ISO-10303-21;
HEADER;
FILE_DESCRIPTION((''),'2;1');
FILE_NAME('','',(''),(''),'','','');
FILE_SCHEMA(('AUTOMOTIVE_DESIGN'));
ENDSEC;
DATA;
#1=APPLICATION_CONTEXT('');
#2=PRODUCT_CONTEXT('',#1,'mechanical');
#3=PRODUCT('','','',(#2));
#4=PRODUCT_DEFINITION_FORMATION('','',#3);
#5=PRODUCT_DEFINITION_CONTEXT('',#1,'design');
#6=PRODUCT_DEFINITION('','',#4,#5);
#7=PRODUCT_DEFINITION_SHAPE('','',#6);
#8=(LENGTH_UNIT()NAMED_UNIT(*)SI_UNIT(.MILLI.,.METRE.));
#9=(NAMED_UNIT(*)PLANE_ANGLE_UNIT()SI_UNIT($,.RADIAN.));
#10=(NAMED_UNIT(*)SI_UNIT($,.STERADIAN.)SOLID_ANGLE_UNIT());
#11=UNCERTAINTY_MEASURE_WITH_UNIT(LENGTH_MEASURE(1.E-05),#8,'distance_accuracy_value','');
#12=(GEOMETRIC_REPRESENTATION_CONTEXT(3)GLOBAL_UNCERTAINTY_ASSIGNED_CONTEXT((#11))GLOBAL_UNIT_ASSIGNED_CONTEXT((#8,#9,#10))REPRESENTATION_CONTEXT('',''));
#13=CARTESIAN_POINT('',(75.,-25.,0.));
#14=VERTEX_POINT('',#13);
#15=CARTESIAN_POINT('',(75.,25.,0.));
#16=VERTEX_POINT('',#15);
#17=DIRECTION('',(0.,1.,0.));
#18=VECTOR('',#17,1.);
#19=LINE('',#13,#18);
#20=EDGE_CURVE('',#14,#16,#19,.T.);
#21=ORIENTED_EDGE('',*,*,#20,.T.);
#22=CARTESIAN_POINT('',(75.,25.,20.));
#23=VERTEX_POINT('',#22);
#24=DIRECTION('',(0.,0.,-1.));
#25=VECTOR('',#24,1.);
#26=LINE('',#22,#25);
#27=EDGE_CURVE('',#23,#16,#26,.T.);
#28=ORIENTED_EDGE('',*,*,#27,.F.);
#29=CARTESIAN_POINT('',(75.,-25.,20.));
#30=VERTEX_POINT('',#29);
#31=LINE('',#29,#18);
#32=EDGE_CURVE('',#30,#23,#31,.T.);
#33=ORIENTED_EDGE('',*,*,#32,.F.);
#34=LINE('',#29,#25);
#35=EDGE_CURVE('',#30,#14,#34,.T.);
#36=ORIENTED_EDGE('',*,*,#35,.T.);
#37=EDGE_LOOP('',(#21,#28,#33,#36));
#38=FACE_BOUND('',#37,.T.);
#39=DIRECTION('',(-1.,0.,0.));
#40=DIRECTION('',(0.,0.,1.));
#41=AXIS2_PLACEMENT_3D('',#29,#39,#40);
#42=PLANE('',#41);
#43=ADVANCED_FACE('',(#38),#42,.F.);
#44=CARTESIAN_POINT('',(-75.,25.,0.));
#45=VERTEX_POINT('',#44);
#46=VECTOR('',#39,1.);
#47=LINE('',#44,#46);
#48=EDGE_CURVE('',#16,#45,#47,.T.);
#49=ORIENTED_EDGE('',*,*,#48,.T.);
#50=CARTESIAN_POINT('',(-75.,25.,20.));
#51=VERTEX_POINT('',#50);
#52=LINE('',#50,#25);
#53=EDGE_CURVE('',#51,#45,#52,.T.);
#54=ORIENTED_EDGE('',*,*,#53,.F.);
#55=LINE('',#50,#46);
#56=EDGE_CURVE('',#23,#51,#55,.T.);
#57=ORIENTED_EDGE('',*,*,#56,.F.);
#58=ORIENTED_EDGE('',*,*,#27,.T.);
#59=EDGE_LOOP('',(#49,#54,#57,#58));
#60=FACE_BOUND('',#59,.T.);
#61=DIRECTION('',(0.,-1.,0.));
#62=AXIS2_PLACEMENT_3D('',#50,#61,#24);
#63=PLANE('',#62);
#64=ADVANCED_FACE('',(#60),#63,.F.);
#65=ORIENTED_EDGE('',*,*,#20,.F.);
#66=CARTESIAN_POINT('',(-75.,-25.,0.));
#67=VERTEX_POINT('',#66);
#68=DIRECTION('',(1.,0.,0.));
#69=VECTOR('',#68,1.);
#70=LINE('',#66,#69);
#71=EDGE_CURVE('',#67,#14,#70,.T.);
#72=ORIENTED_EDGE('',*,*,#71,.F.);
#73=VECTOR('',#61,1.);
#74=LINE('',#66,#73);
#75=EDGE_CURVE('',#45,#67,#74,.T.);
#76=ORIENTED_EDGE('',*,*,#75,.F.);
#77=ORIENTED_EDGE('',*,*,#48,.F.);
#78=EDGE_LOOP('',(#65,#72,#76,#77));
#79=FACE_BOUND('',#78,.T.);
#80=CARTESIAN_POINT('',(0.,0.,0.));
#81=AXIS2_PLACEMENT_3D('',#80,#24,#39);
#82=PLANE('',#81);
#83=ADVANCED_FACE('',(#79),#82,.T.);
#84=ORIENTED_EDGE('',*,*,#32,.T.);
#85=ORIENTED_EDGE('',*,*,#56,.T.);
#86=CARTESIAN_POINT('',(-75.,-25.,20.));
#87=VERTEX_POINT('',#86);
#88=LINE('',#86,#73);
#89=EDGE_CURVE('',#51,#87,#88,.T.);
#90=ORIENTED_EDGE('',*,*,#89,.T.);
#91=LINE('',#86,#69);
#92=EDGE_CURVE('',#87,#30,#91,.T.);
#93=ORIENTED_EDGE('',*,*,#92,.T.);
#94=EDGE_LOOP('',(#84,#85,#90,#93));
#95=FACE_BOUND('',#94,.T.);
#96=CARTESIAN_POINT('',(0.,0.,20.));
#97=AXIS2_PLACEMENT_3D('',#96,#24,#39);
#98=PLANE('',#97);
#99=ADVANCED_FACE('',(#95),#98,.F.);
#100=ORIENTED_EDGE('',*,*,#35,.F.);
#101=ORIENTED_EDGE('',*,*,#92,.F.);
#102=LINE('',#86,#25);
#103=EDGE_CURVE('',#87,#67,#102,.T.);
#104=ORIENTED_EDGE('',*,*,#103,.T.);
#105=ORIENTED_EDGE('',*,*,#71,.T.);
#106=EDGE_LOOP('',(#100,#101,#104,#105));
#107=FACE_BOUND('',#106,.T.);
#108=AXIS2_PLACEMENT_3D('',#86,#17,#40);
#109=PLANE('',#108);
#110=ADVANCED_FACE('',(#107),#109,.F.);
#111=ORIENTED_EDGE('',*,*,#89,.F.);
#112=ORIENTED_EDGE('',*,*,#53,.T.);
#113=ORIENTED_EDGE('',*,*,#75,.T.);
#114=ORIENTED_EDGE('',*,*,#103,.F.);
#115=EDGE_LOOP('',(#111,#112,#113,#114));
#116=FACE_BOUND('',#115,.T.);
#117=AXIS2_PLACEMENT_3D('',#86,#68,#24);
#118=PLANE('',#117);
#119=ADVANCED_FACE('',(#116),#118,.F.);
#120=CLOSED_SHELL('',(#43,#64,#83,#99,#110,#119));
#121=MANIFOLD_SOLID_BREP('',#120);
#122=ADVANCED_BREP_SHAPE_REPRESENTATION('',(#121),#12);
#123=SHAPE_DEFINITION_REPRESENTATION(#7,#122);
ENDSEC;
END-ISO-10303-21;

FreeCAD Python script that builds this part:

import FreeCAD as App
import Part
import Sketcher
from FreeCAD import Vector

doc = App.newDocument("Part")
body = doc.addObject("PartDesign::Body", "Body")

sketch1 = doc.addObject("Sketcher::SketchObject", "Sketch")
body.addObject(sketch1)
sketch1.AttachmentSupport = (doc.XY_Plane, [""])
sketch1.MapMode = "FlatFace"
sketch1.addGeometry([
    Part.LineSegment(Vector(-75, 25, 0), Vector(-75, -25, 0)),
    Part.LineSegment(Vector(-75, -25, 0), Vector(75, -25, 0)),
    Part.LineSegment(Vector(75, -25, 0), Vector(75, 25, 0)),
    Part.LineSegment(Vector(75, 25, 0), Vector(-75, 25, 0)),
], False)
sketch1.addConstraint([
    Sketcher.Constraint("Coincident", 0, 2, 1, 1),
    Sketcher.Constraint("Coincident", 1, 2, 2, 1),
    Sketcher.Constraint("Coincident", 2, 2, 3, 1),
    Sketcher.Constraint("Coincident", 3, 2, 0, 1),
    Sketcher.Constraint("Vertical", 0),
    Sketcher.Constraint("Horizontal", 1),
    Sketcher.Constraint("Vertical", 2),
    Sketcher.Constraint("Horizontal", 3),
    Sketcher.Constraint("Symmetric", 0, 2, 2, 2, -1, 1),
    Sketcher.Constraint("DistanceX", 1, 1, 1, 2, 150.0),
    Sketcher.Constraint("DistanceY", 0, 2, 0, 1, 50.0),
])
pad1 = doc.addObject("PartDesign::Pad", "Pad")
body.addObject(pad1)
pad1.Profile = sketch1
pad1.Length = 20

doc.recompute()
